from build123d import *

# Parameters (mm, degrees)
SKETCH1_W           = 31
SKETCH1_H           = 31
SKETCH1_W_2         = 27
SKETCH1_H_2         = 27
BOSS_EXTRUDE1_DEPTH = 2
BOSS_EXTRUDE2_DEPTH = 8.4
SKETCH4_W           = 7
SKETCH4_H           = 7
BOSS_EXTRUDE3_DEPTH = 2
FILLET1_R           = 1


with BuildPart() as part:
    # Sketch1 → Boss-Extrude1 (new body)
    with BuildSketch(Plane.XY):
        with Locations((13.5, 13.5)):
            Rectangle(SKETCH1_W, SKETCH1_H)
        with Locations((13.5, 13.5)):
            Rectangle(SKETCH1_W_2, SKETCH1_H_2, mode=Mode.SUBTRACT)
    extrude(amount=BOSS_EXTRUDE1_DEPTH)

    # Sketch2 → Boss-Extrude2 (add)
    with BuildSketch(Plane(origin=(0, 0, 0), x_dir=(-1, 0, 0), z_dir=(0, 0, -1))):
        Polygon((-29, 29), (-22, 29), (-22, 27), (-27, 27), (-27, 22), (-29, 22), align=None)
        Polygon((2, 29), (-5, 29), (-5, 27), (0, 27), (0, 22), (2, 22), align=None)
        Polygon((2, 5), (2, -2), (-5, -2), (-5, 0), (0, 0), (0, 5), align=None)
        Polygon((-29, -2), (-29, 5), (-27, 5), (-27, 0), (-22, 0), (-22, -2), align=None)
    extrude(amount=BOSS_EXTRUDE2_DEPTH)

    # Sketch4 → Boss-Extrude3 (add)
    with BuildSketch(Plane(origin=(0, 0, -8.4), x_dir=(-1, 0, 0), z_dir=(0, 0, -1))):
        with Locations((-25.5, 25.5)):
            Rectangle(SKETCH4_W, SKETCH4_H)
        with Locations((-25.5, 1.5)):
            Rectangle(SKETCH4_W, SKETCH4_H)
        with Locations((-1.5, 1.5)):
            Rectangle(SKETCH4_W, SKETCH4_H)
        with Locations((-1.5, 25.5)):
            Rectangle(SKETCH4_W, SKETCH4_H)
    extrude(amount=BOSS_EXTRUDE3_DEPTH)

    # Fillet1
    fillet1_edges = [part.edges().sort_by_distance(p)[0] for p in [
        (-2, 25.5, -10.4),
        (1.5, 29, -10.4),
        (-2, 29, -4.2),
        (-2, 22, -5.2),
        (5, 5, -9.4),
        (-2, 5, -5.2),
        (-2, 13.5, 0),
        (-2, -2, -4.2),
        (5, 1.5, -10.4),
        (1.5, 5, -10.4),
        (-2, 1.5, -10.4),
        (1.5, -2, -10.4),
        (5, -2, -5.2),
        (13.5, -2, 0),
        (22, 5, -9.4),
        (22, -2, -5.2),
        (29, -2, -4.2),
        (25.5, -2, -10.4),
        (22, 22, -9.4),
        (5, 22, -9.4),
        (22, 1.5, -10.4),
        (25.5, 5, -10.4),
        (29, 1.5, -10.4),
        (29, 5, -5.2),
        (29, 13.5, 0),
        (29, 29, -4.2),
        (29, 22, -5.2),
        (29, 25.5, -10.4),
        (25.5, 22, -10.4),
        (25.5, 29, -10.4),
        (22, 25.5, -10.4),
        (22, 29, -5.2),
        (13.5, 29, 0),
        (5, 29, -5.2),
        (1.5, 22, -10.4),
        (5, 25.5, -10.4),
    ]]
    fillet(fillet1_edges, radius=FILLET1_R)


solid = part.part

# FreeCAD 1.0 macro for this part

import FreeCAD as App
import Part
import Sketcher


def edges_at(feature, points):
    """Names of the edges that pass closest to the given points."""
    edges = feature.Shape.Edges
    near = lambda p: min(range(len(edges)), key=lambda i: edges[i].distToShape(Part.Vertex(*p))[0])
    return sorted({f"Edge{near(p) + 1}" for p in points})


def add_polygon(sketch, points):
    """Adds a closed chain of lines whose ends are joined by coincident constraints."""
    first, n = sketch.GeometryCount, len(points)
    for a, b in zip(points, points[1:] + points[:1]):
        sketch.addGeometry(Part.LineSegment(App.Vector(*a, 0), App.Vector(*b, 0)), False)
    for i in range(n):
        sketch.addConstraint(Sketcher.Constraint("Coincident", first + i, 2, first + (i + 1) % n, 1))

doc = App.newDocument("Part")
body = doc.addObject("PartDesign::Body", "Body")

# Sketch on XY plane
sketch1 = body.newObject("Sketcher::SketchObject", "Sketch")
sketch1.AttachmentSupport = (doc.getObject("XY_Plane"), [""])
sketch1.MapMode = "FlatFace"
add_polygon(sketch1, [(-2, 29), (-2, -2), (29, -2), (29, 29)])  # lines 0-3
add_polygon(sketch1, [(27, 0), (0, 0), (0, 27), (27, 27)])  # lines 4-7
sketch1.addConstraint([
    Sketcher.Constraint("Vertical", 0),
    Sketcher.Constraint("Horizontal", 1),
    Sketcher.Constraint("Vertical", 2),
    Sketcher.Constraint("Horizontal", 3),
    Sketcher.Constraint("Horizontal", 4),
    Sketcher.Constraint("Vertical", 5),
    Sketcher.Constraint("Horizontal", 6),
    Sketcher.Constraint("Vertical", 7),
    Sketcher.Constraint("Coincident", 4, 2, -1, 1),
    Sketcher.Constraint("Equal", 3, 0),
    Sketcher.Constraint("Equal", 6, 5),
    Sketcher.Constraint("DistanceX", 1, 1, 1, 2, 31.0),
    Sketcher.Constraint("DistanceX", 4, 2, 4, 1, 27.0),
    Sketcher.Constraint("DistanceX", 0, 2, -1, 1, 2.0),
    Sketcher.Constraint("DistanceY", 0, 2, -1, 1, 2.0),
])
pad1 = body.newObject("PartDesign::Pad", "Pad")
pad1.Profile = sketch1
pad1.Length = 2

# Sketch on XY plane
sketch2 = body.newObject("Sketcher::SketchObject", "Sketch001")
sketch2.AttachmentSupport = (doc.getObject("XY_Plane"), [""])
sketch2.MapMode = "FlatFace"
add_polygon(sketch2, [(22, 29), (29, 29), (29, 22), (27, 22), (27, 27), (22, 27)])  # lines 0-5
add_polygon(sketch2, [(-2, 29), (5, 29), (5, 27), (0, 27), (0, 22), (-2, 22)])  # lines 6-11
add_polygon(sketch2, [(-2, -2), (-2, 5), (0, 5), (0, 0), (5, 0), (5, -2)])  # lines 12-17
add_polygon(sketch2, [(29, 5), (29, -2), (22, -2), (22, 0), (27, 0), (27, 5)])  # lines 18-23
sketch2.addConstraint([
    Sketcher.Constraint("Horizontal", 0),
    Sketcher.Constraint("Vertical", 1),
    Sketcher.Constraint("Horizontal", 2),
    Sketcher.Constraint("Vertical", 3),
    Sketcher.Constraint("Horizontal", 4),
    Sketcher.Constraint("Vertical", 5),
    Sketcher.Constraint("Horizontal", 6),
    Sketcher.Constraint("Vertical", 7),
    Sketcher.Constraint("Horizontal", 8),
    Sketcher.Constraint("Vertical", 9),
    Sketcher.Constraint("Horizontal", 10),
    Sketcher.Constraint("Vertical", 11),
    Sketcher.Constraint("Vertical", 12),
    Sketcher.Constraint("Horizontal", 13),
    Sketcher.Constraint("Vertical", 14),
    Sketcher.Constraint("Horizontal", 15),
    Sketcher.Constraint("Vertical", 16),
    Sketcher.Constraint("Horizontal", 17),
    Sketcher.Constraint("Vertical", 18),
    Sketcher.Constraint("Horizontal", 19),
    Sketcher.Constraint("Vertical", 20),
    Sketcher.Constraint("Horizontal", 21),
    Sketcher.Constraint("Vertical", 22),
    Sketcher.Constraint("Horizontal", 23),
    Sketcher.Constraint("Coincident", 14, 2, -1, 1),
    Sketcher.Constraint("PointOnObject", 8, 2, -2),
    Sketcher.Constraint("PointOnObject", 20, 2, -1),
    Sketcher.Constraint("Horizontal", 5, 2, 6, 2),
    Sketcher.Constraint("Horizontal", 4, 2, 7, 2),
    Sketcher.Constraint("Horizontal", 2, 2, 9, 2),
    Sketcher.Constraint("Horizontal", 17, 2, 18, 2),
    Sketcher.Constraint("Horizontal", 13, 2, 22, 2),
    Sketcher.Constraint("Vertical", 11, 2, 12, 2),
    Sketcher.Constraint("Vertical", 7, 2, 15, 2),
    Sketcher.Constraint("Vertical", 1, 2, 18, 2),
    Sketcher.Constraint("Vertical", 5, 2, 19, 2),
    Sketcher.Constraint("Vertical", 3, 2, 21, 2),
    Sketcher.Constraint("Equal", 0, 6),
    Sketcher.Constraint("Equal", 4, 8),
    Sketcher.Constraint("Equal", 19, 1),
    Sketcher.Constraint("Equal", 21, 3),
    Sketcher.Constraint("Equal", 11, 12),
    Sketcher.Constraint("Equal", 9, 14),
    Sketcher.Constraint("DistanceX", 0, 1, 0, 2, 7.0),
    Sketcher.Constraint("DistanceX", 2, 2, 2, 1, 2.0),
    Sketcher.Constraint("DistanceX", -1, 1, 0, 2, 29.0),
    Sketcher.Constraint("DistanceY", -1, 1, 0, 2, 29.0),
])
pad2 = body.newObject("PartDesign::Pad", "Pad001")
pad2.Profile = sketch2
pad2.Length = 8.4
pad2.Reversed = True

# Sketch on XY plane
sketch3 = body.newObject("Sketcher::SketchObject", "Sketch002")
sketch3.AttachmentSupport = (doc.getObject("XY_Plane"), [""])
sketch3.MapMode = "FlatFace"
sketch3.AttachmentOffset = App.Placement(App.Vector(0, 0, -8.4), App.Rotation())
add_polygon(sketch3, [(29, 29), (29, 22), (22, 22), (22, 29)])  # lines 0-3
add_polygon(sketch3, [(29, 5), (29, -2), (22, -2), (22, 5)])  # lines 4-7
add_polygon(sketch3, [(5, 5), (5, -2), (-2, -2), (-2, 5)])  # lines 8-11
add_polygon(sketch3, [(5, 29), (5, 22), (-2, 22), (-2, 29)])  # lines 12-15
sketch3.addConstraint([
    Sketcher.Constraint("Vertical", 0),
    Sketcher.Constraint("Horizontal", 1),
    Sketcher.Constraint("Vertical", 2),
    Sketcher.Constraint("Horizontal", 3),
    Sketcher.Constraint("Vertical", 4),
    Sketcher.Constraint("Horizontal", 5),
    Sketcher.Constraint("Vertical", 6),
    Sketcher.Constraint("Horizontal", 7),
    Sketcher.Constraint("Vertical", 8),
    Sketcher.Constraint("Horizontal", 9),
    Sketcher.Constraint("Vertical", 10),
    Sketcher.Constraint("Horizontal", 11),
    Sketcher.Constraint("Vertical", 12),
    Sketcher.Constraint("Horizontal", 13),
    Sketcher.Constraint("Vertical", 14),
    Sketcher.Constraint("Horizontal", 15),
    Sketcher.Constraint("Horizontal", 5, 2, 8, 2),
    Sketcher.Constraint("Horizontal", 7, 2, 10, 2),
    Sketcher.Constraint("Horizontal", 1, 2, 12, 2),
    Sketcher.Constraint("Horizontal", 3, 2, 14, 2),
    Sketcher.Constraint("Vertical", 3, 2, 4, 2),
    Sketcher.Constraint("Vertical", 2, 2, 5, 2),
    Sketcher.Constraint("Vertical", 11, 2, 12, 2),
    Sketcher.Constraint("Vertical", 10, 2, 13, 2),
    Sketcher.Constraint("Equal", 7, 9),
    Sketcher.Constraint("Equal", 15, 0),
    Sketcher.Constraint("Equal", 2, 4),
    Sketcher.Constraint("DistanceX", 1, 2, 1, 1, 7.0),
    Sketcher.Constraint("DistanceX", -1, 1, 0, 2, 29.0),
    Sketcher.Constraint("DistanceY", -1, 1, 0, 2, 22.0),
    Sketcher.Constraint("DistanceY", 4, 2, -1, 1, 2.0),
    Sketcher.Constraint("DistanceX", -1, 1, 8, 2, 5.0),
])
pad3 = body.newObject("PartDesign::Pad", "Pad002")
pad3.Profile = sketch3
pad3.Length = 2
pad3.Reversed = True
doc.recompute()

fillet = body.newObject("PartDesign::Fillet", "Fillet")
fillet.Base = (pad3, edges_at(pad3, [
    (-2, 25.5, -10.4),
    (1.5, 29, -10.4),
    (-2, 29, -4.2),
    (-2, 22, -5.2),
    (5, 5, -9.4),
    (-2, 5, -5.2),
    (-2, 13.5, 0),
    (-2, -2, -4.2),
    (5, 1.5, -10.4),
    (1.5, 5, -10.4),
    (-2, 1.5, -10.4),
    (1.5, -2, -10.4),
    (5, -2, -5.2),
    (13.5, -2, 0),
    (22, 5, -9.4),
    (22, -2, -5.2),
    (29, -2, -4.2),
    (25.5, -2, -10.4),
    (22, 22, -9.4),
    (5, 22, -9.4),
    (22, 1.5, -10.4),
    (25.5, 5, -10.4),
    (29, 1.5, -10.4),
    (29, 5, -5.2),
    (29, 13.5, 0),
    (29, 29, -4.2),
    (29, 22, -5.2),
    (29, 25.5, -10.4),
    (25.5, 22, -10.4),
    (25.5, 29, -10.4),
    (22, 25.5, -10.4),
    (22, 29, -5.2),
    (13.5, 29, 0),
    (5, 29, -5.2),
    (1.5, 22, -10.4),
    (5, 25.5, -10.4),
]))
fillet.Radius = 1

doc.recompute()
